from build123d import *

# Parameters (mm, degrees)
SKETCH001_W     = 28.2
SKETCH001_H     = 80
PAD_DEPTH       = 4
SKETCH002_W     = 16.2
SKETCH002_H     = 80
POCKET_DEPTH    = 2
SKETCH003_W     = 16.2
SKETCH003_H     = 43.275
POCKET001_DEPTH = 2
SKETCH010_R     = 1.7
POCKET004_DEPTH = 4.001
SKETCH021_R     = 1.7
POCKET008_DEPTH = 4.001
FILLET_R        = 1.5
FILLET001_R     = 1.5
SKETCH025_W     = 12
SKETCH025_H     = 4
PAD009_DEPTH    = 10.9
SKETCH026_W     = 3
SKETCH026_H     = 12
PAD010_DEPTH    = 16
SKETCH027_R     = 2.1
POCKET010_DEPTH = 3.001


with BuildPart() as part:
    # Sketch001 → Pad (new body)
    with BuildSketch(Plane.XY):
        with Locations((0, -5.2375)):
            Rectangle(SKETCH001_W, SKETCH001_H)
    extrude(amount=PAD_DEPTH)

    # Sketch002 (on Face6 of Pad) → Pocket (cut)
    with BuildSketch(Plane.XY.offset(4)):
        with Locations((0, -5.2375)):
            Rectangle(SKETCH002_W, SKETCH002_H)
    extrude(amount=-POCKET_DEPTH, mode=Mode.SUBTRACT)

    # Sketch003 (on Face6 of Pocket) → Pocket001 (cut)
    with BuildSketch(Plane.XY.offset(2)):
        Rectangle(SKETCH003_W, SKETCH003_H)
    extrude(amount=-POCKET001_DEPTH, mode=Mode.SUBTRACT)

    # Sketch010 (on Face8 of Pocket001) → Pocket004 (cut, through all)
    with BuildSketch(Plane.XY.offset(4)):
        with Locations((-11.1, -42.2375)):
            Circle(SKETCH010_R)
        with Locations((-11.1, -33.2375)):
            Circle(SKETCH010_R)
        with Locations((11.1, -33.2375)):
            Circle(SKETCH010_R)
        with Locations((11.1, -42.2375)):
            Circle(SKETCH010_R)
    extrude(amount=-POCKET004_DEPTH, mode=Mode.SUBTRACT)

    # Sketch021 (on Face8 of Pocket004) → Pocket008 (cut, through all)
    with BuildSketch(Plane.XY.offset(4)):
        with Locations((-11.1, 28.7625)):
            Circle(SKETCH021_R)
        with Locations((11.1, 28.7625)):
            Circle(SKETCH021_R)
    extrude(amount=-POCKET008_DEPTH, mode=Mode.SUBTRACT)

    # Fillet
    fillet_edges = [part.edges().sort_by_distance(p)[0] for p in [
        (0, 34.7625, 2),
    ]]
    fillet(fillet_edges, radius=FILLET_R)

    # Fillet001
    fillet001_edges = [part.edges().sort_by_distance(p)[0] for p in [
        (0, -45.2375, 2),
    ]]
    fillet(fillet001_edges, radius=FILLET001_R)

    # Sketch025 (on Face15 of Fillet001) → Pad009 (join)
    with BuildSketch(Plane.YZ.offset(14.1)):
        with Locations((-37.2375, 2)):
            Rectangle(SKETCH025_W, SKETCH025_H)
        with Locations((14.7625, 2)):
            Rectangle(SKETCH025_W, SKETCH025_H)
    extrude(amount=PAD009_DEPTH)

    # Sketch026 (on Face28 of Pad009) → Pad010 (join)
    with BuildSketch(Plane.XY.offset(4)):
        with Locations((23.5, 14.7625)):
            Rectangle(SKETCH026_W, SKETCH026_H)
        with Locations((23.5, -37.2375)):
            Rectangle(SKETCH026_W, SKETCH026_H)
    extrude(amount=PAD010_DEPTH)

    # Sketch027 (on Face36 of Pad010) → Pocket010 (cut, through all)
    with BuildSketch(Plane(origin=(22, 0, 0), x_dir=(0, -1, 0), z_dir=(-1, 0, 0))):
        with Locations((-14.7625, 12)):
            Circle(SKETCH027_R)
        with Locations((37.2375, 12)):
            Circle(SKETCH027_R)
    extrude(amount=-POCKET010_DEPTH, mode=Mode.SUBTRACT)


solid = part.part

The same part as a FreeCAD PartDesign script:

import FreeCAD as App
import Part
import Sketcher
from FreeCAD import Vector
Q = App.Units.Quantity


def edges_at(feature, points):
    """Names of the edges that pass closest to the given points."""
    edges = feature.Shape.Edges
    near = lambda p: min(range(len(edges)), key=lambda i: edges[i].distToShape(Part.Vertex(*p))[0])
    return sorted({f"Edge{near(p) + 1}" for p in points})


def add_polygon(sketch, points):
    """Adds a closed chain of lines whose ends are joined by coincident constraints."""
    first, n = sketch.GeometryCount, len(points)
    for a, b in zip(points, points[1:] + points[:1]):
        sketch.addGeometry(Part.LineSegment(App.Vector(*a, 0), App.Vector(*b, 0)), False)
    for i in range(n):
        sketch.addConstraint(Sketcher.Constraint("Coincident", first + i, 2, first + (i + 1) % n, 1))

doc = App.newDocument("Part")
params = doc.addObject("Spreadsheet::Sheet", "Params")
for row, (alias, value) in enumerate([
    ("sketch1_height", "80 mm"),
    ("sketch1_width", "28.2 mm"),
    ("pad1_length", "4 mm"),
    ("sketch2_height", "80 mm"),
    ("sketch2_width", "16.2 mm"),
    ("pocket1_length", "2 mm"),
    ("sketch3_width", "16.2 mm"),
    ("pocket2_length", "2 mm"),
    ("sketch4_diameter", "3.4 mm"),
    ("sketch5_diameter", "3.4 mm"),
    ("fillet_radius", "1.5 mm"),
    ("fillet2_radius", "1.5 mm"),
    ("sketch6_width", "12 mm"),
    ("sketch6_height", "4 mm"),
    ("pad2_length", "10.9 mm"),
    ("sketch7_width", "3 mm"),
    ("sketch7_height", "12 mm"),
    ("pad3_length", "16 mm"),
    ("sketch8_diameter", "4.2 mm"),
], start=1):
    params.set(f"A{row}", alias)
    params.set(f"B{row}", "=" + value)
    params.setAlias(f"B{row}", alias)

body = doc.addObject("PartDesign::Body", "Body")

# Sketch on XY plane
sketch1 = body.newObject("Sketcher::SketchObject", "Sketch")
sketch1.AttachmentSupport = (doc.getObject("XY_Plane"), [""])
sketch1.MapMode = "FlatFace"
add_polygon(sketch1, [(-14, 35), (-14, -45), (14, -45), (14, 35)])  # lines 0-3
sketch1.addConstraint(Sketcher.Constraint("Vertical", 0))
sketch1.addConstraint(Sketcher.Constraint("Horizontal", 1))
sketch1.addConstraint(Sketcher.Constraint("Vertical", 2))
sketch1.addConstraint(Sketcher.Constraint("Horizontal", 3))
sketch1.addConstraint(Sketcher.Constraint("DistanceY", 0, 2, 0, 1, Q("80 mm")))
sketch1.addConstraint(Sketcher.Constraint("DistanceX", 1, 1, 1, 2, Q("28.2 mm")))
sketch1.addConstraint(Sketcher.Constraint("DistanceX", 0, 2, -1, 1, Q("14.1 mm")))
sketch1.addConstraint(Sketcher.Constraint("DistanceY", 0, 2, -1, 1, Q("45.2375 mm")))
sketch1.setExpression("Constraints[8]", "Params.sketch1_height")
sketch1.setExpression("Constraints[9]", "Params.sketch1_width")
pad1 = body.newObject("PartDesign::Pad", "Pad")
pad1.Profile = sketch1
pad1.setExpression("Length", "Params.pad1_length")

# Sketch on XY plane
sketch2 = body.newObject("Sketcher::SketchObject", "Sketch001")
sketch2.AttachmentSupport = (doc.getObject("XY_Plane"), [""])
sketch2.MapMode = "FlatFace"
sketch2.AttachmentOffset = App.Placement(Vector(0, 0, 4), App.Rotation())
add_polygon(sketch2, [(-8, 35), (-8, -45), (8, -45), (8, 35)])  # lines 0-3
sketch2.addConstraint(Sketcher.Constraint("Vertical", 0))
sketch2.addConstraint(Sketcher.Constraint("Horizontal", 1))
sketch2.addConstraint(Sketcher.Constraint("Vertical", 2))
sketch2.addConstraint(Sketcher.Constraint("Horizontal", 3))
sketch2.addConstraint(Sketcher.Constraint("DistanceY", 0, 2, 0, 1, Q("80 mm")))
sketch2.addConstraint(Sketcher.Constraint("DistanceX", 1, 1, 1, 2, Q("16.2 mm")))
sketch2.addConstraint(Sketcher.Constraint("DistanceX", 0, 2, -1, 1, Q("8.1 mm")))
sketch2.addConstraint(Sketcher.Constraint("DistanceY", 0, 2, -1, 1, Q("45.2375 mm")))
sketch2.setExpression("Constraints[8]", "Params.sketch2_height")
sketch2.setExpression("Constraints[9]", "Params.sketch2_width")
pocket1 = body.newObject("PartDesign::Pocket", "Pocket")
pocket1.Profile = sketch2
pocket1.setExpression("Length", "Params.pocket1_length")

# Sketch on XY plane
sketch3 = body.newObject("Sketcher::SketchObject", "Sketch002")
sketch3.AttachmentSupport = (doc.getObject("XY_Plane"), [""])
sketch3.MapMode = "FlatFace"
sketch3.AttachmentOffset = App.Placement(Vector(0, 0, 2), App.Rotation())
add_polygon(sketch3, [(-8, 22), (-8, -22), (8, -22), (8, 22)])  # lines 0-3
sketch3.addConstraint(Sketcher.Constraint("Vertical", 0))
sketch3.addConstraint(Sketcher.Constraint("Horizontal", 1))
sketch3.addConstraint(Sketcher.Constraint("Vertical", 2))
sketch3.addConstraint(Sketcher.Constraint("Horizontal", 3))
sketch3.addConstraint(Sketcher.Constraint("Symmetric", 0, 2, 2, 2, -1, 1))
sketch3.addConstraint(Sketcher.Constraint("DistanceX", 1, 1, 1, 2, Q("16.2 mm")))
sketch3.addConstraint(Sketcher.Constraint("DistanceY", 0, 2, 0, 1, Q("43.275 mm")))
sketch3.setExpression("Constraints[9]", "Params.sketch3_width")
pocket2 = body.newObject("PartDesign::Pocket", "Pocket001")
pocket2.Profile = sketch3
pocket2.setExpression("Length", "Params.pocket2_length")

# Sketch on XY plane
sketch4 = body.newObject("Sketcher::SketchObject", "Sketch003")
sketch4.AttachmentSupport = (doc.getObject("XY_Plane"), [""])
sketch4.MapMode = "FlatFace"
sketch4.AttachmentOffset = App.Placement(Vector(0, 0, 4), App.Rotation())
sketch4.addGeometry(Part.Circle(Vector(-11.1, -42.2, 0), Vector(0, 0, 1), 1.7), False)
sketch4.addGeometry(Part.Circle(Vector(-11.1, -33.2, 0), Vector(0, 0, 1), 1.7), False)
sketch4.addGeometry(Part.Circle(Vector(11.1, -33.2, 0), Vector(0, 0, 1), 1.7), False)
sketch4.addGeometry(Part.Circle(Vector(11.1, -42.2, 0), Vector(0, 0, 1), 1.7), False)
sketch4.addConstraint(Sketcher.Constraint("Equal", 0, 1))
sketch4.addConstraint(Sketcher.Constraint("Equal", 1, 2))
sketch4.addConstraint(Sketcher.Constraint("Equal", 2, 3))
sketch4.addConstraint(Sketcher.Constraint("Symmetric", 1, 3, 2, 3, -2))
sketch4.addConstraint(Sketcher.Constraint("Symmetric", 0, 3, 3, 3, -2))
sketch4.addConstraint(Sketcher.Constraint("Vertical", 0, 3, 1, 3))
sketch4.addConstraint(Sketcher.Constraint("Diameter", 0, Q("3.4 mm")))
sketch4.addConstraint(Sketcher.Constraint("DistanceY", 0, 3, 1, 3, Q("9 mm")))
sketch4.addConstraint(Sketcher.Constraint("DistanceX", 0, 3, -1, 1, Q("11.1 mm")))
sketch4.addConstraint(Sketcher.Constraint("DistanceY", 0, 3, -1, 1, Q("42.2375 mm")))
sketch4.setExpression("Constraints[6]", "Params.sketch4_diameter")
pocket3 = body.newObject("PartDesign::Pocket", "Pocket002")
pocket3.Profile = sketch4
pocket3.Type = "ThroughAll"

# Sketch on XY plane
sketch5 = body.newObject("Sketcher::SketchObject", "Sketch004")
sketch5.AttachmentSupport = (doc.getObject("XY_Plane"), [""])
sketch5.MapMode = "FlatFace"
sketch5.AttachmentOffset = App.Placement(Vector(0, 0, 4), App.Rotation())
sketch5.addGeometry(Part.Circle(Vector(-11.1, 28.8, 0), Vector(0, 0, 1), 1.7), False)
sketch5.addGeometry(Part.Circle(Vector(11.1, 28.8, 0), Vector(0, 0, 1), 1.7), False)
sketch5.addConstraint(Sketcher.Constraint("Equal", 0, 1))
sketch5.addConstraint(Sketcher.Constraint("Symmetric", 0, 3, 1, 3, -2))
sketch5.addConstraint(Sketcher.Constraint("Diameter", 0, Q("3.4 mm")))
sketch5.addConstraint(Sketcher.Constraint("DistanceX", 0, 3, -1, 1, Q("11.1 mm")))
sketch5.addConstraint(Sketcher.Constraint("DistanceY", -1, 1, 0, 3, Q("28.7625 mm")))
sketch5.setExpression("Constraints[2]", "Params.sketch5_diameter")
pocket4 = body.newObject("PartDesign::Pocket", "Pocket003")
pocket4.Profile = sketch5
pocket4.Type = "ThroughAll"
doc.recompute()

fillet = body.newObject("PartDesign::Fillet", "Fillet")
fillet.Base = (pocket4, edges_at(pocket4, [(0, 34.763, 2)]))
fillet.setExpression("Radius", "Params.fillet_radius")
doc.recompute()

fillet2 = body.newObject("PartDesign::Fillet", "Fillet001")
fillet2.Base = (fillet, edges_at(fillet, [(0, -45.237, 2)]))
fillet2.setExpression("Radius", "Params.fillet2_radius")

# Sketch on YZ plane
sketch6 = body.newObject("Sketcher::SketchObject", "Sketch005")
sketch6.AttachmentSupport = (doc.getObject("YZ_Plane"), [""])
sketch6.MapMode = "FlatFace"
sketch6.AttachmentOffset = App.Placement(Vector(0, 0, 14.1), App.Rotation())
add_polygon(sketch6, [(-43.2, 4), (-43.2, 0), (-31.2, 0), (-31.2, 4)])  # lines 0-3
add_polygon(sketch6, [(8.8, 4), (8.8, 0), (20.8, 0), (20.8, 4)])  # lines 4-7
sketch6.addConstraint(Sketcher.Constraint("Vertical", 0))
sketch6.addConstraint(Sketcher.Constraint("Horizontal", 1))
sketch6.addConstraint(Sketcher.Constraint("Vertical", 2))
sketch6.addConstraint(Sketcher.Constraint("Horizontal", 3))
sketch6.addConstraint(Sketcher.Constraint("Vertical", 4))
sketch6.addConstraint(Sketcher.Constraint("Horizontal", 5))
sketch6.addConstraint(Sketcher.Constraint("Vertical", 6))
sketch6.addConstraint(Sketcher.Constraint("Horizontal", 7))
sketch6.addConstraint(Sketcher.Constraint("PointOnObject", 0, 2, -1))
sketch6.addConstraint(Sketcher.Constraint("PointOnObject", 4, 2, -1))
sketch6.addConstraint(Sketcher.Constraint("Horizontal", 3, 2, 6, 2))
sketch6.addConstraint(Sketcher.Constraint("Equal", 3, 5))
sketch6.addConstraint(Sketcher.Constraint("DistanceX", 1, 1, 1, 2, Q("12 mm")))
sketch6.addConstraint(Sketcher.Constraint("DistanceY", 0, 2, 0, 1, Q("4 mm")))
sketch6.addConstraint(Sketcher.Constraint("DistanceX", 1, 2, 4, 2, Q("40 mm")))
sketch6.addConstraint(Sketcher.Constraint("DistanceX", 0, 2, -1, 1, Q("43.2375 mm")))
sketch6.setExpression("Constraints[20]", "Params.sketch6_width")
sketch6.setExpression("Constraints[21]", "Params.sketch6_height")
pad2 = body.newObject("PartDesign::Pad", "Pad001")
pad2.Profile = sketch6
pad2.setExpression("Length", "Params.pad2_length")

# Sketch on XY plane
sketch7 = body.newObject("Sketcher::SketchObject", "Sketch006")
sketch7.AttachmentSupport = (doc.getObject("XY_Plane"), [""])
sketch7.MapMode = "FlatFace"
sketch7.AttachmentOffset = App.Placement(Vector(0, 0, 4), App.Rotation())
add_polygon(sketch7, [(22, 20.8), (22, 8.8), (25, 8.8), (25, 20.8)])  # lines 0-3
add_polygon(sketch7, [(22, -31.2), (22, -43.2), (25, -43.2), (25, -31.2)])  # lines 4-7
sketch7.addConstraint(Sketcher.Constraint("Vertical", 0))
sketch7.addConstraint(Sketcher.Constraint("Horizontal", 1))
sketch7.addConstraint(Sketcher.Constraint("Vertical", 2))
sketch7.addConstraint(Sketcher.Constraint("Horizontal", 3))
sketch7.addConstraint(Sketcher.Constraint("Vertical", 4))
sketch7.addConstraint(Sketcher.Constraint("Horizontal", 5))
sketch7.addConstraint(Sketcher.Constraint("Vertical", 6))
sketch7.addConstraint(Sketcher.Constraint("Horizontal", 7))
sketch7.addConstraint(Sketcher.Constraint("Vertical", 3, 2, 4, 2))
sketch7.addConstraint(Sketcher.Constraint("Vertical", 2, 2, 5, 2))
sketch7.addConstraint(Sketcher.Constraint("Equal", 2, 4))
sketch7.addConstraint(Sketcher.Constraint("DistanceX", 1, 1, 1, 2, Q("3 mm")))
sketch7.addConstraint(Sketcher.Constraint("DistanceY", 0, 2, 0, 1, Q("12 mm")))
sketch7.addConstraint(Sketcher.Constraint("DistanceX", -1, 1, 0, 2, Q("22 mm")))
sketch7.addConstraint(Sketcher.Constraint("DistanceY", 4, 2, 0, 2, Q("52 mm")))
sketch7.addConstraint(Sketcher.Constraint("DistanceY", -1, 1, 0, 2, Q("8.7625 mm")))
sketch7.setExpression("Constraints[19]", "Params.sketch7_width")
sketch7.setExpression("Constraints[20]", "Params.sketch7_height")
pad3 = body.newObject("PartDesign::Pad", "Pad002")
pad3.Profile = sketch7
pad3.setExpression("Length", "Params.pad3_length")

# Sketch on YZ plane
sketch8 = body.newObject("Sketcher::SketchObject", "Sketch007")
sketch8.AttachmentSupport = (doc.getObject("YZ_Plane"), [""])
sketch8.MapMode = "FlatFace"
sketch8.AttachmentOffset = App.Placement(Vector(0, 0, 22), App.Rotation())
sketch8.addGeometry(Part.Circle(Vector(14.8, 12, 0), Vector(0, 0, 1), 2.1), False)
sketch8.addGeometry(Part.Circle(Vector(-37.2, 12, 0), Vector(0, 0, 1), 2.1), False)
sketch8.addConstraint(Sketcher.Constraint("Equal", 0, 1))
sketch8.addConstraint(Sketcher.Constraint("Horizontal", 0, 3, 1, 3))
sketch8.addConstraint(Sketcher.Constraint("Diameter", 0, Q("4.2 mm")))
sketch8.addConstraint(Sketcher.Constraint("DistanceY", -1, 1, 0, 3, Q("12 mm")))
sketch8.addConstraint(Sketcher.Constraint("DistanceX", 1, 3, 0, 3, Q("52 mm")))
sketch8.addConstraint(Sketcher.Constraint("DistanceX", -1, 1, 0, 3, Q("14.7625 mm")))
sketch8.setExpression("Constraints[2]", "Params.sketch8_diameter")
pocket5 = body.newObject("PartDesign::Pocket", "Pocket004")
pocket5.Profile = sketch8
pocket5.Type = "ThroughAll"
pocket5.Reversed = True

doc.recompute()
